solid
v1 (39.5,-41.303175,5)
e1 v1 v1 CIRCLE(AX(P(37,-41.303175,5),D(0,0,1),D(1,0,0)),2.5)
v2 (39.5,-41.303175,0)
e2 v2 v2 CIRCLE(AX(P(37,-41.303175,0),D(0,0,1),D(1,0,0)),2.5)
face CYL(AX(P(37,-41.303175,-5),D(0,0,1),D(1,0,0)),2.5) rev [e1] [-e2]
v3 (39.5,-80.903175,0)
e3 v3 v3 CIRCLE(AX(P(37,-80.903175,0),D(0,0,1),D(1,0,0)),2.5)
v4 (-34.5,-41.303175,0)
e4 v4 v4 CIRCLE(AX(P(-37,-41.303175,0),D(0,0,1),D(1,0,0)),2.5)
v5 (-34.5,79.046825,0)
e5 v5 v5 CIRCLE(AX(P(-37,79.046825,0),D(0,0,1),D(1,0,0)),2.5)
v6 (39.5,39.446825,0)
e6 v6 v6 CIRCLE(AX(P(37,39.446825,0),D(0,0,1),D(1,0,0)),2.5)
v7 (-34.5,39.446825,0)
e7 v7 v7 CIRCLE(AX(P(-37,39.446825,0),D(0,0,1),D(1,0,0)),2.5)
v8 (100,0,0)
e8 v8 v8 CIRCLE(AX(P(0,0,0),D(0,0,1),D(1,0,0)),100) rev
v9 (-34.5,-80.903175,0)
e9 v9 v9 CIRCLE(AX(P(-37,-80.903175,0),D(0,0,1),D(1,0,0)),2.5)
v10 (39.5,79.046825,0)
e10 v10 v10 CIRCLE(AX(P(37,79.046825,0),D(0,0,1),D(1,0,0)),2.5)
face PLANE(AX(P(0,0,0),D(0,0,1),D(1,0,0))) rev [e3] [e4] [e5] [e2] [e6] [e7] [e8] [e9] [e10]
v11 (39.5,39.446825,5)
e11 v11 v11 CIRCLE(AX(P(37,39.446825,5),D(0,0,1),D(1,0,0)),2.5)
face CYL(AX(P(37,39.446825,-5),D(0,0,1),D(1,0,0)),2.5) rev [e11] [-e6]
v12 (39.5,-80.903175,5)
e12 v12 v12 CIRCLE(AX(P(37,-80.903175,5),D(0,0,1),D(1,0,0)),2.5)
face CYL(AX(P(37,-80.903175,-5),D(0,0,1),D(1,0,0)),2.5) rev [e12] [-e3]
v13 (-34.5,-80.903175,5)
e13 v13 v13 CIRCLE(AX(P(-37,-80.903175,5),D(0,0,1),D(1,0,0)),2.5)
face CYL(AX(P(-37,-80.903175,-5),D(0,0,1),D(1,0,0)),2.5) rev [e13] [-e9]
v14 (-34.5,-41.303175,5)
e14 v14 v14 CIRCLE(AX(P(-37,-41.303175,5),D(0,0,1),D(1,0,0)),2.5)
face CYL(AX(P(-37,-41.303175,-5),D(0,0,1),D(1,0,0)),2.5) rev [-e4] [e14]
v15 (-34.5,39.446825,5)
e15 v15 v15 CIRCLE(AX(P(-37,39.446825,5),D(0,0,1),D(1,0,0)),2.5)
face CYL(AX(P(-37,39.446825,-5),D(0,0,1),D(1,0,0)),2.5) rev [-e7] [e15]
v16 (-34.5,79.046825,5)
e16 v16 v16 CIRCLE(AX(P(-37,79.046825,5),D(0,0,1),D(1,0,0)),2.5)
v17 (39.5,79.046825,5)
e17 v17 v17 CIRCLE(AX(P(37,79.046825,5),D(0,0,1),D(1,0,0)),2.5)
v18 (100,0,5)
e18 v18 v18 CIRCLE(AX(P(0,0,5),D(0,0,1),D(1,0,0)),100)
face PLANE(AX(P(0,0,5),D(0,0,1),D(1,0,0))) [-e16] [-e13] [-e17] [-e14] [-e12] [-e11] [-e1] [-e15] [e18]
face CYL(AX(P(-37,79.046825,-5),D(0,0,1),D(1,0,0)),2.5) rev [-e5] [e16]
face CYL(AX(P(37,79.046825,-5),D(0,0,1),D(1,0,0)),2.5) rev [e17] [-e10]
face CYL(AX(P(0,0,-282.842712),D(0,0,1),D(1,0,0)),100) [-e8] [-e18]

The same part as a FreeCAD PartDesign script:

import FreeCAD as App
import Part
import Sketcher
from FreeCAD import Vector
Q = App.Units.Quantity

doc = App.newDocument("Part")
body = doc.addObject("PartDesign::Body", "Body")

# Sketch on XY plane
sketch1 = body.newObject("Sketcher::SketchObject", "Sketch")
sketch1.AttachmentSupport = (doc.getObject("XY_Plane"), [""])
sketch1.MapMode = "FlatFace"
sketch1.addGeometry(Part.Circle(Vector(0, 0, 0), Vector(0, 0, 1), 82), False)
sketch1.addConstraint(Sketcher.Constraint("Coincident", 0, 3, -1, 1))
sketch1.addConstraint(Sketcher.Constraint("Diameter", 0, Q("164.84 mm")))
pad1 = body.newObject("PartDesign::Pad", "Pad")
pad1.Profile = sketch1
pad1.Length = 5

# Sketch on XY plane
sketch2 = body.newObject("Sketcher::SketchObject", "Sketch001")
sketch2.AttachmentSupport = (doc.getObject("XY_Plane"), [""])
sketch2.MapMode = "FlatFace"
sketch2.AttachmentOffset = App.Placement(Vector(0, 0, 5), App.Rotation())
sketch2.addGeometry(Part.Circle(Vector(0, 0, 0), Vector(0, 0, 1), 100), False)
sketch2.addConstraint(Sketcher.Constraint("Coincident", 0, 3, -1, 1))
sketch2.addConstraint(Sketcher.Constraint("Diameter", 0, Q("200 mm")))
pad2 = body.newObject("PartDesign::Pad", "Pad001")
pad2.Profile = sketch2
pad2.Length = 5
pad2.Reversed = True

# Sketch on XY plane
sketch3 = body.newObject("Sketcher::SketchObject", "Sketch002")
sketch3.AttachmentSupport = (doc.getObject("XY_Plane"), [""])
sketch3.MapMode = "FlatFace"
sketch3.AttachmentOffset = App.Placement(Vector(0, 0, 5), App.Rotation())
sketch3.addGeometry(Part.Circle(Vector(-37, -80.9, 0), Vector(0, 0, 1), 2.5), False)
sketch3.addGeometry(Part.Circle(Vector(37, -80.9, 0), Vector(0, 0, 1), 2.5), False)
sketch3.addGeometry(Part.Circle(Vector(-37, -41.3, 0), Vector(0, 0, 1), 2.5), False)
sketch3.addGeometry(Part.Circle(Vector(37, -41.3, 0), Vector(0, 0, 1), 2.5), False)
sketch3.addConstraint(Sketcher.Constraint("Equal", 0, 1))
sketch3.addConstraint(Sketcher.Constraint("Equal", 1, 2))
sketch3.addConstraint(Sketcher.Constraint("Equal", 2, 3))
sketch3.addConstraint(Sketcher.Constraint("Symmetric", 0, 3, 1, 3, -2))
sketch3.addConstraint(Sketcher.Constraint("Symmetric", 2, 3, 3, 3, -2))
sketch3.addConstraint(Sketcher.Constraint("Vertical", 0, 3, 2, 3))
sketch3.addConstraint(Sketcher.Constraint("Diameter", 0, Q("5 mm")))
sketch3.addConstraint(Sketcher.Constraint("DistanceX", 0, 3, -1, 1, Q("37 mm")))
sketch3.addConstraint(Sketcher.Constraint("DistanceY", 0, 3, 2, 3, Q("39.6 mm")))
sketch3.addConstraint(Sketcher.Constraint("DistanceY", 0, 3, -1, 1, Q("80.903175 mm")))
pocket1 = body.newObject("PartDesign::Pocket", "Pocket")
pocket1.Profile = sketch3
pocket1.Length = 10

# Sketch on XY plane
sketch4 = body.newObject("Sketcher::SketchObject", "Sketch003")
sketch4.AttachmentSupport = (doc.getObject("XY_Plane"), [""])
sketch4.MapMode = "FlatFace"
sketch4.AttachmentOffset = App.Placement(Vector(0, 0, 5), App.Rotation())
sketch4.addGeometry(Part.Circle(Vector(-37, -41.3, 0), Vector(0, 0, 1), 2.5), False)
sketch4.addGeometry(Part.Circle(Vector(-37, 39.4, 0), Vector(0, 0, 1), 2.5), False)
sketch4.addGeometry(Part.Circle(Vector(-37, -80.9, 0), Vector(0, 0, 1), 2.5), False)
sketch4.addGeometry(Part.Circle(Vector(-37, 79, 0), Vector(0, 0, 1), 2.5), False)
sketch4.addGeometry(Part.Circle(Vector(37, -41.3, 0), Vector(0, 0, 1), 2.5), False)
sketch4.addGeometry(Part.Circle(Vector(37, 79, 0), Vector(0, 0, 1), 2.5), False)
sketch4.addGeometry(Part.Circle(Vector(37, 39.4, 0), Vector(0, 0, 1), 2.5), False)
sketch4.addConstraint(Sketcher.Constraint("Equal", 0, 1))
sketch4.addConstraint(Sketcher.Constraint("Equal", 1, 2))
sketch4.addConstraint(Sketcher.Constraint("Equal", 2, 3))
sketch4.addConstraint(Sketcher.Constraint("Equal", 3, 4))
sketch4.addConstraint(Sketcher.Constraint("Equal", 4, 5))
sketch4.addConstraint(Sketcher.Constraint("Equal", 5, 6))
sketch4.addConstraint(Sketcher.Constraint("Symmetric", 0, 3, 4, 3, -2))
sketch4.addConstraint(Sketcher.Constraint("Symmetric", 3, 3, 5, 3, -2))
sketch4.addConstraint(Sketcher.Constraint("Symmetric", 1, 3, 6, 3, -2))
sketch4.addConstraint(Sketcher.Constraint("Vertical", 0, 3, 1, 3))
sketch4.addConstraint(Sketcher.Constraint("Vertical", 1, 3, 2, 3))
sketch4.addConstraint(Sketcher.Constraint("Vertical", 2, 3, 3, 3))
sketch4.addConstraint(Sketcher.Constraint("Diameter", 0, Q("5 mm")))
sketch4.addConstraint(Sketcher.Constraint("DistanceX", 0, 3, -1, 1, Q("37 mm")))
sketch4.addConstraint(Sketcher.Constraint("DistanceY", 2, 3, 0, 3, Q("39.6 mm")))
sketch4.addConstraint(Sketcher.Constraint("DistanceY", 1, 3, 3, 3, Q("39.6 mm")))
sketch4.addConstraint(Sketcher.Constraint("DistanceY", 0, 3, 1, 3, Q("80.75 mm")))
sketch4.addConstraint(Sketcher.Constraint("DistanceY", 0, 3, -1, 1, Q("41.303175 mm")))
pocket2 = body.newObject("PartDesign::Pocket", "Pocket001")
pocket2.Profile = sketch4
pocket2.Length = 10

doc.recompute()
